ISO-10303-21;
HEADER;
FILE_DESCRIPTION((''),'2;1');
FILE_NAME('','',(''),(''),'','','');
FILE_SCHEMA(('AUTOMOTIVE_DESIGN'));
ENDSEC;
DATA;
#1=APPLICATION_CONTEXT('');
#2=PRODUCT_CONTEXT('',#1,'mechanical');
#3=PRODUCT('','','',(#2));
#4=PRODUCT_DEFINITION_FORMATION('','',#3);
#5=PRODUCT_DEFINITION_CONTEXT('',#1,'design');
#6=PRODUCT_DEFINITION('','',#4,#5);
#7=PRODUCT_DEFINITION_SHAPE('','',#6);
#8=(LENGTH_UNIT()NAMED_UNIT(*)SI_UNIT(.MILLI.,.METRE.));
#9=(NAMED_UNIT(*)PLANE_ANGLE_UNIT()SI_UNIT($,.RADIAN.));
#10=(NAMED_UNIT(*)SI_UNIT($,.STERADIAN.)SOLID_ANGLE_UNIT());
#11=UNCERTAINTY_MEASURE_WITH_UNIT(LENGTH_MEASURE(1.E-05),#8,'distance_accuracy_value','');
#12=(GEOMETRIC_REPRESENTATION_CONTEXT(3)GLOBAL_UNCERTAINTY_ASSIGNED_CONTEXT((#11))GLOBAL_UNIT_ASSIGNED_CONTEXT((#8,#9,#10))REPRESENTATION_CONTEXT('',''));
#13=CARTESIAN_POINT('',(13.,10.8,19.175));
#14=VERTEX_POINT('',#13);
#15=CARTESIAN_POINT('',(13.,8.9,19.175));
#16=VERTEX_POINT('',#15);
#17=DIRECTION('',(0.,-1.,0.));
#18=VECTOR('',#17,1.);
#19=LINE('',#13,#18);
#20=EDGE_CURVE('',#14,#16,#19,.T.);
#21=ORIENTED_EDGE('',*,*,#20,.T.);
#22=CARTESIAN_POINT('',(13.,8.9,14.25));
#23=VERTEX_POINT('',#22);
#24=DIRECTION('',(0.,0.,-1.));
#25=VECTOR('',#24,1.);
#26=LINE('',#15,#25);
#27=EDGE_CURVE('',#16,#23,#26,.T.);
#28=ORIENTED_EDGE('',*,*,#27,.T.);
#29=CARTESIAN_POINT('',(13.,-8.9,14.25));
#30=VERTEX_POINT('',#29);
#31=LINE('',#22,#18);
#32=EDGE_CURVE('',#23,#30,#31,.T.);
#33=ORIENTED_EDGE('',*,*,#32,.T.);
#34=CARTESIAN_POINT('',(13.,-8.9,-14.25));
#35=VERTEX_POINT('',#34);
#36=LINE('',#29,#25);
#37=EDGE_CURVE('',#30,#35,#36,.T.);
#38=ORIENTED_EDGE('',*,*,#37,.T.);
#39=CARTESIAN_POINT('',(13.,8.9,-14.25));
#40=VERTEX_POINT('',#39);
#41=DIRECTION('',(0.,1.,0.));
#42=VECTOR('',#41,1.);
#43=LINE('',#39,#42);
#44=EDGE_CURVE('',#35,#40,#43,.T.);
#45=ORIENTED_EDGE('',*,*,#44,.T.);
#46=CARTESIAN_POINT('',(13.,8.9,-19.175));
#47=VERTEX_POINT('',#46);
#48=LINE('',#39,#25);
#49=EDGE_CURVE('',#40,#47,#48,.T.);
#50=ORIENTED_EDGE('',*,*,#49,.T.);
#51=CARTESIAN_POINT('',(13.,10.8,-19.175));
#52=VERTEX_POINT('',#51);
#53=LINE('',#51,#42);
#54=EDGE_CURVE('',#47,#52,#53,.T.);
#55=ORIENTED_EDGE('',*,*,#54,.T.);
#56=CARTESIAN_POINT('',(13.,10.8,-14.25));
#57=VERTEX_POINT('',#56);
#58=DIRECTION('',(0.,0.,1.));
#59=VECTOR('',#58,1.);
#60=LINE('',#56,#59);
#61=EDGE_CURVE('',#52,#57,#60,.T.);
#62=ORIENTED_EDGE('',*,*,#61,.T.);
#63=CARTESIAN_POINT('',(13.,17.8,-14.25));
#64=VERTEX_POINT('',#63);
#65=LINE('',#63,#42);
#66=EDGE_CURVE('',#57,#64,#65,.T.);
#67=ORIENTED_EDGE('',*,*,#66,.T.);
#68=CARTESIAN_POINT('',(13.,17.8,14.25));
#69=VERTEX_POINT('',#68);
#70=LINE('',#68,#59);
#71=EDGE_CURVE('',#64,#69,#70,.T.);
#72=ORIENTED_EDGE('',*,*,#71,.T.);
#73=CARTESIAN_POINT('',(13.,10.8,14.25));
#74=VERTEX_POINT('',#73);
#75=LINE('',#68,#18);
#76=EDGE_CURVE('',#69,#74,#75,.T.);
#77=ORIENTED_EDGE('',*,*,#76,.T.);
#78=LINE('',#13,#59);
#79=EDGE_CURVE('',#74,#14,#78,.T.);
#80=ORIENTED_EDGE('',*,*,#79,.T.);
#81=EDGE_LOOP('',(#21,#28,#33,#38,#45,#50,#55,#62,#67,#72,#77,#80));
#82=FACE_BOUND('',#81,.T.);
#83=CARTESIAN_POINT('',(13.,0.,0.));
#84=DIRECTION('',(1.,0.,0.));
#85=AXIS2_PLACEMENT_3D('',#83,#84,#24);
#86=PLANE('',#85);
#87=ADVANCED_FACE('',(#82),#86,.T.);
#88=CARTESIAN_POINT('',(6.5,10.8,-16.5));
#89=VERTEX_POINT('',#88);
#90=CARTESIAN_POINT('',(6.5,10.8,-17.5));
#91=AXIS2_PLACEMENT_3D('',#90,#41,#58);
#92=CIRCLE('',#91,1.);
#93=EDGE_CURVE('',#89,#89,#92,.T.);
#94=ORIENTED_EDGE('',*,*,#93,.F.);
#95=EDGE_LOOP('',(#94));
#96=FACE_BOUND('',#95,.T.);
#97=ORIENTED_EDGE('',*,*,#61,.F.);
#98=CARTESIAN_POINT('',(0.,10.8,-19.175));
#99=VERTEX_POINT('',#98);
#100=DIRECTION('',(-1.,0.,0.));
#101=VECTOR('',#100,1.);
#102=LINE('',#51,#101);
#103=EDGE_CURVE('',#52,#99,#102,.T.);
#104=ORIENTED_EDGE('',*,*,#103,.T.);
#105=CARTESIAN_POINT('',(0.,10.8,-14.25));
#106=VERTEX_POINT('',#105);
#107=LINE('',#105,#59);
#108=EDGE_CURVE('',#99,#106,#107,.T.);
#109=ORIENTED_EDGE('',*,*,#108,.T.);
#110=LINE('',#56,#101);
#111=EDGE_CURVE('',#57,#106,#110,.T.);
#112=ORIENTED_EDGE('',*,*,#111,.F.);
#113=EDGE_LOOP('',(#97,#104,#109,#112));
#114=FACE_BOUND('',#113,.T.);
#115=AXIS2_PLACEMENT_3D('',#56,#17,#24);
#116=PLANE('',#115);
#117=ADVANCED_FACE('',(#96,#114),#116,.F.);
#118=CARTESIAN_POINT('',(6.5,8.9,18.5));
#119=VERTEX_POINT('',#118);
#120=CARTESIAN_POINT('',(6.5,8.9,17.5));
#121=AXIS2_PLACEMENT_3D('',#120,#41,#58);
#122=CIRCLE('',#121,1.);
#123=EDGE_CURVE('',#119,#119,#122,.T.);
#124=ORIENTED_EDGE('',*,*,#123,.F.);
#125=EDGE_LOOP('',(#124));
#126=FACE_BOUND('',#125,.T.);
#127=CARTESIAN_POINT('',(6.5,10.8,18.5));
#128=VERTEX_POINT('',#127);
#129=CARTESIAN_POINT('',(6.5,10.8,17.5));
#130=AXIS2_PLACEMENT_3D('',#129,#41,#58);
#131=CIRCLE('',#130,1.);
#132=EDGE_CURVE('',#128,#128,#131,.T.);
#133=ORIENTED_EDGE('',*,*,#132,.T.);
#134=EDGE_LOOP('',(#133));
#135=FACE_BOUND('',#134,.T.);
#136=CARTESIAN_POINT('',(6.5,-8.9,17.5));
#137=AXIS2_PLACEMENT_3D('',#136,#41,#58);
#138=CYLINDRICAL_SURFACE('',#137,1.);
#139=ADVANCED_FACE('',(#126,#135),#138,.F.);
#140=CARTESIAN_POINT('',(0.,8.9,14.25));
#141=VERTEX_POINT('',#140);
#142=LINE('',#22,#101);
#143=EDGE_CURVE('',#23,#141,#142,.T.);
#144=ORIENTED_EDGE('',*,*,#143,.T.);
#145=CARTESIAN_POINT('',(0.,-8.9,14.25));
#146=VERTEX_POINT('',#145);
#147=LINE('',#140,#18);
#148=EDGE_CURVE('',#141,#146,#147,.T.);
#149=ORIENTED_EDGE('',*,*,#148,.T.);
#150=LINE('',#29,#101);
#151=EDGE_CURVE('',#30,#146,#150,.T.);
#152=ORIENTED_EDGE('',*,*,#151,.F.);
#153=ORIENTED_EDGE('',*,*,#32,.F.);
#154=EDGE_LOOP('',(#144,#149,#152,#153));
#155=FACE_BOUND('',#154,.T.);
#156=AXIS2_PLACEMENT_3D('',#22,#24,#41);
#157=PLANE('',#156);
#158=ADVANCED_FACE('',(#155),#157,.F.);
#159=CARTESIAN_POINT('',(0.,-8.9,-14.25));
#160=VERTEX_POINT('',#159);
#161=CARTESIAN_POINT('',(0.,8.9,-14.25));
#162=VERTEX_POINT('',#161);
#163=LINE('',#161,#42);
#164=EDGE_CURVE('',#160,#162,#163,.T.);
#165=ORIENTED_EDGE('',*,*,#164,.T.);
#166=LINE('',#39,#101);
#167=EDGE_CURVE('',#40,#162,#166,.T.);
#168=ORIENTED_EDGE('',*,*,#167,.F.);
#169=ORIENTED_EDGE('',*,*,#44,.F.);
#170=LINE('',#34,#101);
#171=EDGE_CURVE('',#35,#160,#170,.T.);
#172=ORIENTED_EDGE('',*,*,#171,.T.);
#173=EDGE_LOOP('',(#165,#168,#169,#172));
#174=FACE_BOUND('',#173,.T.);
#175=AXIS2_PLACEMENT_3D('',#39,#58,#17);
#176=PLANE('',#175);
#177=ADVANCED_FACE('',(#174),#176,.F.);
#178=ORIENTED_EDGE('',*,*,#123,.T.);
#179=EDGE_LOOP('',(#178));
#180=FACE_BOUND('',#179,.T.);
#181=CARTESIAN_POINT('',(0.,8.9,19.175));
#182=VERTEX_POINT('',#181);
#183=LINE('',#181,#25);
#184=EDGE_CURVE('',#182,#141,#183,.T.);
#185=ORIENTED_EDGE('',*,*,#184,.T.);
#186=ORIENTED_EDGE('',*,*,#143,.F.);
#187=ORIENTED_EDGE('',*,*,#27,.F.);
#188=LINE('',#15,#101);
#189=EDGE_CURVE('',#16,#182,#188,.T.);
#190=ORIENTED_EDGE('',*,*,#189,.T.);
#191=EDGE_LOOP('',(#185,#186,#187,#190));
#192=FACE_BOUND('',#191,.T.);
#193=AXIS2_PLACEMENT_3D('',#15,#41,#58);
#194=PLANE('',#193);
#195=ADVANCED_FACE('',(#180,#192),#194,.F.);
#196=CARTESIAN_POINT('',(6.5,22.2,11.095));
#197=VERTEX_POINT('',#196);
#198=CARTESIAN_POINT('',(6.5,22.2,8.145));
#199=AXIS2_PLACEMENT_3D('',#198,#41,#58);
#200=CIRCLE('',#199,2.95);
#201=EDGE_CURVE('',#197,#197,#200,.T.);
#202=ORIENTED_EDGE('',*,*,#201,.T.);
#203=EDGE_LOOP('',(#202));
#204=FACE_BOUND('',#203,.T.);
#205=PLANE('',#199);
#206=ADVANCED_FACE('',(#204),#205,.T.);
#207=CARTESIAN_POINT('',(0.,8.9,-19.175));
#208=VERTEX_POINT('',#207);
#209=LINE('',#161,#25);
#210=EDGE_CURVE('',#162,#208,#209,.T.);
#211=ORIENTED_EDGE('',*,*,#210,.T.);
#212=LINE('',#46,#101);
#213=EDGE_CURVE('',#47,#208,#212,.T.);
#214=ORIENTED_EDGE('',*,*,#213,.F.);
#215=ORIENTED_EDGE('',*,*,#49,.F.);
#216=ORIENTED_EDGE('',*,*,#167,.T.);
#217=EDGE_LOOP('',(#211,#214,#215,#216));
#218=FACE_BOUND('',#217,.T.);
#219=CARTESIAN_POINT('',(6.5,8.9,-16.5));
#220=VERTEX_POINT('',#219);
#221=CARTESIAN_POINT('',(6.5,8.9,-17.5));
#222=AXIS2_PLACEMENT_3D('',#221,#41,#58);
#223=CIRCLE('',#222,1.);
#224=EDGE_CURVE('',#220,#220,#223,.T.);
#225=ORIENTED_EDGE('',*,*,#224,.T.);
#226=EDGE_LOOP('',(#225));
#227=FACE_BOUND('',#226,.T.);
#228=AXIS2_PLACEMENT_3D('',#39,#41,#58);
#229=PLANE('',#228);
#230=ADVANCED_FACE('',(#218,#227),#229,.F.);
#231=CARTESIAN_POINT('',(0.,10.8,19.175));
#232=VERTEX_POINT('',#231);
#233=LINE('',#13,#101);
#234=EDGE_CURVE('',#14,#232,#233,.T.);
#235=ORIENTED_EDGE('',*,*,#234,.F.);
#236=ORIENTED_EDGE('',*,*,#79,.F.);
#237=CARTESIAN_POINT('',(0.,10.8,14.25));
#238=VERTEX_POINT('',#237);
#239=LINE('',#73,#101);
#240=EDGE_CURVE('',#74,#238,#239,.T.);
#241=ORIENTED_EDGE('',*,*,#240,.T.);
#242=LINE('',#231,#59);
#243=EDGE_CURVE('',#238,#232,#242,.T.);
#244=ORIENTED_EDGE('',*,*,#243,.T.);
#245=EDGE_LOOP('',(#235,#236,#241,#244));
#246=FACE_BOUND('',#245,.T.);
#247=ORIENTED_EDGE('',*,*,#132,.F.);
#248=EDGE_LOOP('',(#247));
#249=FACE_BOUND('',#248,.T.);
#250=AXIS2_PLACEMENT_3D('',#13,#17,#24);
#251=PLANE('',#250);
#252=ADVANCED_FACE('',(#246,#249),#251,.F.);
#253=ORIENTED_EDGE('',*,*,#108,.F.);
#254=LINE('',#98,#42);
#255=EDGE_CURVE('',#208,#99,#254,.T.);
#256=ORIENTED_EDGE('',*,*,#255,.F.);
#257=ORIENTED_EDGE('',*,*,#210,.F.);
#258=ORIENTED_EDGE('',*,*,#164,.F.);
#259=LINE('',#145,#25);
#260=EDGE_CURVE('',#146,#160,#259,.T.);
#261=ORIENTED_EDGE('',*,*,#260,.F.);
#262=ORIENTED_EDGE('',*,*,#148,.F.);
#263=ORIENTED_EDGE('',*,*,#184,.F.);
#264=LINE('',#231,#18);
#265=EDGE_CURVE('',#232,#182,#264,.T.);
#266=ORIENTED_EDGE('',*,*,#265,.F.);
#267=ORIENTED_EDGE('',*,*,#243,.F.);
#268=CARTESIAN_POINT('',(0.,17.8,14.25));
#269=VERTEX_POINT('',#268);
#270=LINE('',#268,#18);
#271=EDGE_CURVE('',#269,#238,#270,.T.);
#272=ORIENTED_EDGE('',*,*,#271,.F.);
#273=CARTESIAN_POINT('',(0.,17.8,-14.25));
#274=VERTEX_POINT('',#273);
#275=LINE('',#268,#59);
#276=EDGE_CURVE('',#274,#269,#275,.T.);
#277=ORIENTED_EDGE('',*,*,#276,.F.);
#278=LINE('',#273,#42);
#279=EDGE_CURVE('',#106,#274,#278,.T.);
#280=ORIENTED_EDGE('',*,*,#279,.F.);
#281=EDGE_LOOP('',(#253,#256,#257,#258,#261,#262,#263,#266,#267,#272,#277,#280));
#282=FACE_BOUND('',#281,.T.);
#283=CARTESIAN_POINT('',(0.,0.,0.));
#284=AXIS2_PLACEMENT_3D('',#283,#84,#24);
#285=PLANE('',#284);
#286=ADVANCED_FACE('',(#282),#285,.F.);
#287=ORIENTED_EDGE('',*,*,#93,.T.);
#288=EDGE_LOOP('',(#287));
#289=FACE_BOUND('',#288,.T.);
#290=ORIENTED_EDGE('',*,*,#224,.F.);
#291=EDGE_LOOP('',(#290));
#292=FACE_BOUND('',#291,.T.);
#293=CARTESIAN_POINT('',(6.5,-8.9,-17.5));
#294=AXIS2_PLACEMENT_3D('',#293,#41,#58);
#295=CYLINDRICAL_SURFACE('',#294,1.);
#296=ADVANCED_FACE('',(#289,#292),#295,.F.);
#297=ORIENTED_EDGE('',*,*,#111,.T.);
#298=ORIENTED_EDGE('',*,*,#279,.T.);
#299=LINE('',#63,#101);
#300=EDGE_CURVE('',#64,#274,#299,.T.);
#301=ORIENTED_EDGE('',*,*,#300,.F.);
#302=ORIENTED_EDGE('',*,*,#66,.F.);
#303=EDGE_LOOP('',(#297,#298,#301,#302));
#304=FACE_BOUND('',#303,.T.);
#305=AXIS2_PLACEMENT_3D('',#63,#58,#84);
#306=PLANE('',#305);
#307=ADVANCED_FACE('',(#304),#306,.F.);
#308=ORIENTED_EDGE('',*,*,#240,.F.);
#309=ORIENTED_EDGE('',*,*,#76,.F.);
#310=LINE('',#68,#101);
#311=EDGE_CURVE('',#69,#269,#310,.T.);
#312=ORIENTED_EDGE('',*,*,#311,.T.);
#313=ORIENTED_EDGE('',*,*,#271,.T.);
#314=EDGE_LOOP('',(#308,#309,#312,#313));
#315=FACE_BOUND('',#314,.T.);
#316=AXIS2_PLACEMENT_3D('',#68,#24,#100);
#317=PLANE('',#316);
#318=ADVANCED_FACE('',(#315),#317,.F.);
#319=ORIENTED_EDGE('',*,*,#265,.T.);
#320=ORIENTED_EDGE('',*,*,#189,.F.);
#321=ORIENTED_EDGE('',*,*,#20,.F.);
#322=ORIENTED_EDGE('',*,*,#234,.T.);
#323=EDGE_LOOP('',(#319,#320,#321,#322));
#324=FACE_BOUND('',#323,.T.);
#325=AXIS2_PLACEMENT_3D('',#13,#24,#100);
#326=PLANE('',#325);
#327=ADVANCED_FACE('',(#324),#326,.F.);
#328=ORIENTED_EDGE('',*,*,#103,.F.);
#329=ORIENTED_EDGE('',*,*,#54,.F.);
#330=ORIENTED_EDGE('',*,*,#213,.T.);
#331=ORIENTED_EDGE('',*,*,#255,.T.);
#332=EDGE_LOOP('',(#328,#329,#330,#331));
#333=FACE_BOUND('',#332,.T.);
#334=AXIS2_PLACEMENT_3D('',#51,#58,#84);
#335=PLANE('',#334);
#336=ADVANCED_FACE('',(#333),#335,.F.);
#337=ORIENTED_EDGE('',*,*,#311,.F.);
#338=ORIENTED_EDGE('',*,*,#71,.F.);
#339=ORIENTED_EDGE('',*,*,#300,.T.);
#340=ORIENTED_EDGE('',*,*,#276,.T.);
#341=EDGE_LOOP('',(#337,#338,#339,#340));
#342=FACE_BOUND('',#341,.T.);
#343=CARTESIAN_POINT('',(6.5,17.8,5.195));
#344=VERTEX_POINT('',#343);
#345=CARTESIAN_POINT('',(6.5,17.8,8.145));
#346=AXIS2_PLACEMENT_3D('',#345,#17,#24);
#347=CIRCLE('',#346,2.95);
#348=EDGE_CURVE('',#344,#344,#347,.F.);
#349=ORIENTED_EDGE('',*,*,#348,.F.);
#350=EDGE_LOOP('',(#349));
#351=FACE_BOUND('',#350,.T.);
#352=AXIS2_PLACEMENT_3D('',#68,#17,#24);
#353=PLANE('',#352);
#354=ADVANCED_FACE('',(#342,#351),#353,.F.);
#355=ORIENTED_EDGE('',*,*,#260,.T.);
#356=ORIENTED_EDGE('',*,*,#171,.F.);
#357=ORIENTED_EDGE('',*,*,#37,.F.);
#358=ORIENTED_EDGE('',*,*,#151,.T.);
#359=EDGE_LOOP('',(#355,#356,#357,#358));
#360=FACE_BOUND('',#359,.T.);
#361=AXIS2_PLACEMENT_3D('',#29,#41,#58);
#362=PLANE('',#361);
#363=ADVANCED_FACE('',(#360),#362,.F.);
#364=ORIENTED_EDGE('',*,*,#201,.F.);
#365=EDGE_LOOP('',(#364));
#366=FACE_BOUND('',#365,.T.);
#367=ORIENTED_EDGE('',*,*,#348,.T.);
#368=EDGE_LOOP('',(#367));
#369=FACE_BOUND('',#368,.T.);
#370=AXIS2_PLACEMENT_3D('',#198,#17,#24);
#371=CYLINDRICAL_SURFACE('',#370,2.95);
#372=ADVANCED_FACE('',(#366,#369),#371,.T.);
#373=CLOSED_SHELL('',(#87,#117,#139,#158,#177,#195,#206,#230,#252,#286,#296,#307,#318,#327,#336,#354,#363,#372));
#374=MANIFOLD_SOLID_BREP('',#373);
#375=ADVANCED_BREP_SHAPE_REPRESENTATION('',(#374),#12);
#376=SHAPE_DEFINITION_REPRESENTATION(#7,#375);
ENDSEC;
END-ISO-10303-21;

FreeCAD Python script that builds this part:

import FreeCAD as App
import Part
import Sketcher

V = App.Vector

doc = App.newDocument("Part")
body = doc.addObject("PartDesign::Body", "Body")

# Sketch on YZ plane
sketch1 = body.newObject("Sketcher::SketchObject", "Sketch")
sketch1.AttachmentSupport = (doc.getObject("YZ_Plane"), [""])
sketch1.MapMode = "FlatFace"
sketch1.addGeometry(Part.LineSegment(V(10.8, -19.2, 0), V(10.8, -14.2, 0)), False)
sketch1.addGeometry(Part.LineSegment(V(10.8, -14.2, 0), V(17.8, -14.2, 0)), False)
sketch1.addGeometry(Part.LineSegment(V(17.8, -14.2, 0), V(17.8, 14.2, 0)), False)
sketch1.addGeometry(Part.LineSegment(V(17.8, 14.2, 0), V(10.8, 14.2, 0)), False)
sketch1.addGeometry(Part.LineSegment(V(10.8, 14.2, 0), V(10.8, 19.2, 0)), False)
sketch1.addGeometry(Part.LineSegment(V(10.8, 19.2, 0), V(8.9, 19.2, 0)), False)
sketch1.addGeometry(Part.LineSegment(V(8.9, 19.2, 0), V(8.9, 14.2, 0)), False)
sketch1.addGeometry(Part.LineSegment(V(8.9, 14.2, 0), V(-8.9, 14.2, 0)), False)
sketch1.addGeometry(Part.LineSegment(V(-8.9, 14.2, 0), V(-8.9, -14.2, 0)), False)
sketch1.addGeometry(Part.LineSegment(V(-8.9, -14.2, 0), V(8.9, -14.2, 0)), False)
sketch1.addGeometry(Part.LineSegment(V(8.9, -14.2, 0), V(8.9, -19.2, 0)), False)
sketch1.addGeometry(Part.LineSegment(V(8.9, -19.2, 0), V(10.8, -19.2, 0)), False)
sketch1.addConstraint(Sketcher.Constraint("Coincident", 0, 2, 1, 1))
sketch1.addConstraint(Sketcher.Constraint("Coincident", 1, 2, 2, 1))
sketch1.addConstraint(Sketcher.Constraint("Coincident", 2, 2, 3, 1))
sketch1.addConstraint(Sketcher.Constraint("Coincident", 3, 2, 4, 1))
sketch1.addConstraint(Sketcher.Constraint("Coincident", 4, 2, 5, 1))
sketch1.addConstraint(Sketcher.Constraint("Coincident", 5, 2, 6, 1))
sketch1.addConstraint(Sketcher.Constraint("Coincident", 6, 2, 7, 1))
sketch1.addConstraint(Sketcher.Constraint("Coincident", 7, 2, 8, 1))
sketch1.addConstraint(Sketcher.Constraint("Coincident", 8, 2, 9, 1))
sketch1.addConstraint(Sketcher.Constraint("Coincident", 9, 2, 10, 1))
sketch1.addConstraint(Sketcher.Constraint("Coincident", 10, 2, 11, 1))
sketch1.addConstraint(Sketcher.Constraint("Coincident", 11, 2, 0, 1))
sketch1.addConstraint(Sketcher.Constraint("Vertical", 0))
sketch1.addConstraint(Sketcher.Constraint("Horizontal", 1))
sketch1.addConstraint(Sketcher.Constraint("Vertical", 2))
sketch1.addConstraint(Sketcher.Constraint("Horizontal", 3))
sketch1.addConstraint(Sketcher.Constraint("Vertical", 4))
sketch1.addConstraint(Sketcher.Constraint("Horizontal", 5))
sketch1.addConstraint(Sketcher.Constraint("Vertical", 6))
sketch1.addConstraint(Sketcher.Constraint("Horizontal", 7))
sketch1.addConstraint(Sketcher.Constraint("Vertical", 8))
sketch1.addConstraint(Sketcher.Constraint("Horizontal", 9))
sketch1.addConstraint(Sketcher.Constraint("Vertical", 10))
sketch1.addConstraint(Sketcher.Constraint("Horizontal", 11))
sketch1.addConstraint(Sketcher.Constraint("Symmetric", 6, 2, 8, 2, -1, 1))
sketch1.addConstraint(Sketcher.Constraint("Symmetric", 0, 2, 3, 2, -1))
sketch1.addConstraint(Sketcher.Constraint("Symmetric", 5, 2, 10, 2, -1))
sketch1.addConstraint(Sketcher.Constraint("Horizontal", 3, 2, 6, 2))
sketch1.addConstraint(Sketcher.Constraint("DistanceX", 1, 1, 1, 2, 7.0))
sketch1.addConstraint(Sketcher.Constraint("DistanceX", 5, 2, 5, 1, 1.9))
sketch1.addConstraint(Sketcher.Constraint("DistanceX", 7, 2, 7, 1, 17.8))
sketch1.addConstraint(Sketcher.Constraint("DistanceY", 2, 1, 2, 2, 28.5))
sketch1.addConstraint(Sketcher.Constraint("DistanceY", 0, 1, 0, 2, 4.925))
pad1 = body.newObject("PartDesign::Pad", "Pad")
pad1.Profile = sketch1
pad1.Length = 13

# Sketch on XZ plane
sketch2 = body.newObject("Sketcher::SketchObject", "Sketch001")
sketch2.AttachmentSupport = (doc.getObject("XZ_Plane"), [""])
sketch2.MapMode = "FlatFace"
sketch2.AttachmentOffset = App.Placement(V(0, 0, -10.8), App.Rotation())
sketch2.addGeometry(Part.Circle(V(6.5, -17.5, 0), V(0, 0, 1), 1), False)
sketch2.addGeometry(Part.Circle(V(6.5, 17.5, 0), V(0, 0, 1), 1), False)
sketch2.addConstraint(Sketcher.Constraint("Equal", 0, 1))
sketch2.addConstraint(Sketcher.Constraint("Symmetric", 0, 3, 1, 3, -1))
sketch2.addConstraint(Sketcher.Constraint("Diameter", 0, 2.0))
sketch2.addConstraint(Sketcher.Constraint("DistanceY", 0, 3, 1, 3, 35.0))
sketch2.addConstraint(Sketcher.Constraint("DistanceX", -1, 1, 0, 3, 6.5))
pocket1 = body.newObject("PartDesign::Pocket", "Pocket")
pocket1.Profile = sketch2
pocket1.Type = "ThroughAll"
pocket1.Reversed = True

# Sketch on XZ plane
sketch3 = body.newObject("Sketcher::SketchObject", "Sketch002")
sketch3.AttachmentSupport = (doc.getObject("XZ_Plane"), [""])
sketch3.MapMode = "FlatFace"
sketch3.AttachmentOffset = App.Placement(V(0, 0, -17.8), App.Rotation())
sketch3.addGeometry(Part.Circle(V(6.5, 8.1, 0), V(0, 0, 1), 3), False)
sketch3.addConstraint(Sketcher.Constraint("Diameter", 0, 5.9))
sketch3.addConstraint(Sketcher.Constraint("DistanceX", -1, 1, 0, 3, 6.5))
sketch3.addConstraint(Sketcher.Constraint("DistanceY", -1, 1, 0, 3, 8.145))
pad2 = body.newObject("PartDesign::Pad", "Pad001")
pad2.Profile = sketch3
pad2.Length = 4.4
pad2.Reversed = True

doc.recompute()
